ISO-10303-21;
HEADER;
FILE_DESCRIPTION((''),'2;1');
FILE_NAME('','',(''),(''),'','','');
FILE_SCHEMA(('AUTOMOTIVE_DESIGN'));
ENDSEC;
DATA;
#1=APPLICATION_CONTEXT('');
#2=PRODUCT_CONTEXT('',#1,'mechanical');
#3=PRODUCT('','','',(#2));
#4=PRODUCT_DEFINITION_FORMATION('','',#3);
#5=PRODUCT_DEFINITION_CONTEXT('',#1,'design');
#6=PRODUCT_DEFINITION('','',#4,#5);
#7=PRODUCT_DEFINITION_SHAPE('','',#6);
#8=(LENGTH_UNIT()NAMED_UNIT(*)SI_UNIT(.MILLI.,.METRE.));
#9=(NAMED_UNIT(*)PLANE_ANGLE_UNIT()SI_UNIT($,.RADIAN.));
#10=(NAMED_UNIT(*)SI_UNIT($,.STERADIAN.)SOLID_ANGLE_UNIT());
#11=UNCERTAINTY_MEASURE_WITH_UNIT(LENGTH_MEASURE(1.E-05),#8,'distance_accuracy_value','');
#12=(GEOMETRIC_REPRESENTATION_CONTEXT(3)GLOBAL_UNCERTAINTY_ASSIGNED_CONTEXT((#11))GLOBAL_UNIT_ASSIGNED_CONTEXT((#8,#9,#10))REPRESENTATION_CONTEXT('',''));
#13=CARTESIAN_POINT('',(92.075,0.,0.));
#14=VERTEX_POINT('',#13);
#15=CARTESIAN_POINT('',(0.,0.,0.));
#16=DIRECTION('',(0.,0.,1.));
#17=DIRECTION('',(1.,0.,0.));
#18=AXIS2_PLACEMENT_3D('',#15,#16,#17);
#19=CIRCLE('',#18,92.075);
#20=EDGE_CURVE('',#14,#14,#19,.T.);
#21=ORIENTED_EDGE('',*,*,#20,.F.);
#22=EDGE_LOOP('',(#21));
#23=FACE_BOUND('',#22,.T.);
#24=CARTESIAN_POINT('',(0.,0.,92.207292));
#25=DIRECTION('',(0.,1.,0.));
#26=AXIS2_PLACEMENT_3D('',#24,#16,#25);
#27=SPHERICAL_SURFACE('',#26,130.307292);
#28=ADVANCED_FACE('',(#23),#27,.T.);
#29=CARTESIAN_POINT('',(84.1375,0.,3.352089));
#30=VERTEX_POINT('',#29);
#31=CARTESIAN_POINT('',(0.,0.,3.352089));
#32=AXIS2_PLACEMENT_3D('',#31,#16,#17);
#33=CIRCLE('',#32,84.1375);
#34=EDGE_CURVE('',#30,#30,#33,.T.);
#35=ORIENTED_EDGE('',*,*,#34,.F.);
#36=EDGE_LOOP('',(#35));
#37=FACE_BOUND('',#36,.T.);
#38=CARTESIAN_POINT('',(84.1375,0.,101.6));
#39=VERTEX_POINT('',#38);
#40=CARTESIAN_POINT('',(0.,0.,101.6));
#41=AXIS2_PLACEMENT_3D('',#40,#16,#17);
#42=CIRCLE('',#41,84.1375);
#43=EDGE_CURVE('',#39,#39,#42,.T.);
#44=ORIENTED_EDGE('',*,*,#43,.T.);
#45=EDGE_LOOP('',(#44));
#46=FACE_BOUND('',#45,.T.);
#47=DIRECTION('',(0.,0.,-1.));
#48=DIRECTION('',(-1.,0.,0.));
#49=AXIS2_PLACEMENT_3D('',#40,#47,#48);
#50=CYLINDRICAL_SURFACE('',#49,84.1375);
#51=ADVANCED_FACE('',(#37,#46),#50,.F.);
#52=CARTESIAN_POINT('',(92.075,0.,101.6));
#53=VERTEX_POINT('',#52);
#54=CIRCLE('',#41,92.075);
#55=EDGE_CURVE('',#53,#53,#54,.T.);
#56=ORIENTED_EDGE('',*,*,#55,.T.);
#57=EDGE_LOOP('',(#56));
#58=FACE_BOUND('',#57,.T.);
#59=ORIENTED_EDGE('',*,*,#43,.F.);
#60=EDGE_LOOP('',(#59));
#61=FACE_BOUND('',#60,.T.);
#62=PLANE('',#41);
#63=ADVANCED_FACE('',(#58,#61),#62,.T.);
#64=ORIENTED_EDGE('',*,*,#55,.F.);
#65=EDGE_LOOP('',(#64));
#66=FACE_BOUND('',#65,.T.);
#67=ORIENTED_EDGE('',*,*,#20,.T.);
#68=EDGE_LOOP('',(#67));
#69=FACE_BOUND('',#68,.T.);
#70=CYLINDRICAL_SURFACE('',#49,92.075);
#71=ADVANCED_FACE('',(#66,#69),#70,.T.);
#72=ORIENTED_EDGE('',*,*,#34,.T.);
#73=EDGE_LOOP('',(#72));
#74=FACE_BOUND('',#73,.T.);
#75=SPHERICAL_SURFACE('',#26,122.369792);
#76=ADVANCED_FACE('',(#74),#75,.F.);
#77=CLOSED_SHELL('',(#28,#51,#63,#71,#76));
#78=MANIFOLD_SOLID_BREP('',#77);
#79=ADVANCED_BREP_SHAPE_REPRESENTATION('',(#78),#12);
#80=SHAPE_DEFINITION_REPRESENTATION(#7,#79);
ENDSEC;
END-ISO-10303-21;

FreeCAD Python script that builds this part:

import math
import FreeCAD as App
import Part
import Sketcher
Q = App.Units.Quantity


def faces_at(feature, points):
    """Names of the faces that lie closest to the given points."""
    faces = feature.Shape.Faces
    near = lambda p: min(range(len(faces)), key=lambda i: faces[i].distToShape(Part.Vertex(*p))[0])
    return sorted({f"Face{near(p) + 1}" for p in points})

doc = App.newDocument("Part")
body = doc.addObject("PartDesign::Body", "Body")

# Sketch on XY plane
sketch1 = body.newObject("Sketcher::SketchObject", "Sketch")
sketch1.AttachmentSupport = (doc.getObject("XY_Plane"), [""])
sketch1.MapMode = "FlatFace"
sketch1.addGeometry(Part.Circle(App.Vector(0, 0, 0), App.Vector(0, 0, 1), 92), False)
sketch1.addConstraint([
    Sketcher.Constraint("Coincident", 0, 3, -1, 1),
    Sketcher.Constraint("Diameter", 0, Q("7.25 in")),
])
pad1 = body.newObject("PartDesign::Pad", "Pad")
pad1.Profile = sketch1
pad1.Length = Q("4 in")

# Sketch on YZ plane
sketch2 = body.newObject("Sketcher::SketchObject", "Sketch001")
sketch2.AttachmentSupport = (doc.getObject("YZ_Plane"), [""])
sketch2.MapMode = "FlatFace"
sketch2.addGeometry([
    Part.LineSegment(App.Vector(0, 0, 0), App.Vector(0, -38, 0)),
    Part.ArcOfCircle(Part.Circle(App.Vector(0, 92, 0), App.Vector(0, 0, 1), 130), math.radians(-90), math.radians(-45)),
    Part.LineSegment(App.Vector(92, 0, 0), App.Vector(0, 0, 0)),
], False)
sketch2.addConstraint([
    Sketcher.Constraint("Coincident", 0, 2, 1, 1),
    Sketcher.Constraint("Coincident", 1, 2, 2, 1),
    Sketcher.Constraint("Coincident", 2, 2, 0, 1),
    Sketcher.Constraint("Vertical", 0),
    Sketcher.Constraint("Horizontal", 2),
    Sketcher.Constraint("Coincident", 2, 2, -1, 1),
    Sketcher.Constraint("PointOnObject", 1, 3, -2),
    Sketcher.Constraint("DistanceY", 0, 2, 0, 1, Q("1.5 in")),
    Sketcher.Constraint("DistanceX", 2, 2, 2, 1, Q("3.625 in")),
])
revolution = body.newObject("PartDesign::Revolution", "Revolution")
revolution.Profile = sketch2
revolution.ReferenceAxis = (sketch2, ["V_Axis"])
revolution.Angle = 360
doc.recompute()

thickness = body.newObject("PartDesign::Thickness", "Thickness")
thickness.Base = (revolution, faces_at(revolution, [(0, 0, 101.6)]))
thickness.Value = Q("0.3125 in")
thickness.Reversed = True
thickness.Join = "Arc"

doc.recompute()
